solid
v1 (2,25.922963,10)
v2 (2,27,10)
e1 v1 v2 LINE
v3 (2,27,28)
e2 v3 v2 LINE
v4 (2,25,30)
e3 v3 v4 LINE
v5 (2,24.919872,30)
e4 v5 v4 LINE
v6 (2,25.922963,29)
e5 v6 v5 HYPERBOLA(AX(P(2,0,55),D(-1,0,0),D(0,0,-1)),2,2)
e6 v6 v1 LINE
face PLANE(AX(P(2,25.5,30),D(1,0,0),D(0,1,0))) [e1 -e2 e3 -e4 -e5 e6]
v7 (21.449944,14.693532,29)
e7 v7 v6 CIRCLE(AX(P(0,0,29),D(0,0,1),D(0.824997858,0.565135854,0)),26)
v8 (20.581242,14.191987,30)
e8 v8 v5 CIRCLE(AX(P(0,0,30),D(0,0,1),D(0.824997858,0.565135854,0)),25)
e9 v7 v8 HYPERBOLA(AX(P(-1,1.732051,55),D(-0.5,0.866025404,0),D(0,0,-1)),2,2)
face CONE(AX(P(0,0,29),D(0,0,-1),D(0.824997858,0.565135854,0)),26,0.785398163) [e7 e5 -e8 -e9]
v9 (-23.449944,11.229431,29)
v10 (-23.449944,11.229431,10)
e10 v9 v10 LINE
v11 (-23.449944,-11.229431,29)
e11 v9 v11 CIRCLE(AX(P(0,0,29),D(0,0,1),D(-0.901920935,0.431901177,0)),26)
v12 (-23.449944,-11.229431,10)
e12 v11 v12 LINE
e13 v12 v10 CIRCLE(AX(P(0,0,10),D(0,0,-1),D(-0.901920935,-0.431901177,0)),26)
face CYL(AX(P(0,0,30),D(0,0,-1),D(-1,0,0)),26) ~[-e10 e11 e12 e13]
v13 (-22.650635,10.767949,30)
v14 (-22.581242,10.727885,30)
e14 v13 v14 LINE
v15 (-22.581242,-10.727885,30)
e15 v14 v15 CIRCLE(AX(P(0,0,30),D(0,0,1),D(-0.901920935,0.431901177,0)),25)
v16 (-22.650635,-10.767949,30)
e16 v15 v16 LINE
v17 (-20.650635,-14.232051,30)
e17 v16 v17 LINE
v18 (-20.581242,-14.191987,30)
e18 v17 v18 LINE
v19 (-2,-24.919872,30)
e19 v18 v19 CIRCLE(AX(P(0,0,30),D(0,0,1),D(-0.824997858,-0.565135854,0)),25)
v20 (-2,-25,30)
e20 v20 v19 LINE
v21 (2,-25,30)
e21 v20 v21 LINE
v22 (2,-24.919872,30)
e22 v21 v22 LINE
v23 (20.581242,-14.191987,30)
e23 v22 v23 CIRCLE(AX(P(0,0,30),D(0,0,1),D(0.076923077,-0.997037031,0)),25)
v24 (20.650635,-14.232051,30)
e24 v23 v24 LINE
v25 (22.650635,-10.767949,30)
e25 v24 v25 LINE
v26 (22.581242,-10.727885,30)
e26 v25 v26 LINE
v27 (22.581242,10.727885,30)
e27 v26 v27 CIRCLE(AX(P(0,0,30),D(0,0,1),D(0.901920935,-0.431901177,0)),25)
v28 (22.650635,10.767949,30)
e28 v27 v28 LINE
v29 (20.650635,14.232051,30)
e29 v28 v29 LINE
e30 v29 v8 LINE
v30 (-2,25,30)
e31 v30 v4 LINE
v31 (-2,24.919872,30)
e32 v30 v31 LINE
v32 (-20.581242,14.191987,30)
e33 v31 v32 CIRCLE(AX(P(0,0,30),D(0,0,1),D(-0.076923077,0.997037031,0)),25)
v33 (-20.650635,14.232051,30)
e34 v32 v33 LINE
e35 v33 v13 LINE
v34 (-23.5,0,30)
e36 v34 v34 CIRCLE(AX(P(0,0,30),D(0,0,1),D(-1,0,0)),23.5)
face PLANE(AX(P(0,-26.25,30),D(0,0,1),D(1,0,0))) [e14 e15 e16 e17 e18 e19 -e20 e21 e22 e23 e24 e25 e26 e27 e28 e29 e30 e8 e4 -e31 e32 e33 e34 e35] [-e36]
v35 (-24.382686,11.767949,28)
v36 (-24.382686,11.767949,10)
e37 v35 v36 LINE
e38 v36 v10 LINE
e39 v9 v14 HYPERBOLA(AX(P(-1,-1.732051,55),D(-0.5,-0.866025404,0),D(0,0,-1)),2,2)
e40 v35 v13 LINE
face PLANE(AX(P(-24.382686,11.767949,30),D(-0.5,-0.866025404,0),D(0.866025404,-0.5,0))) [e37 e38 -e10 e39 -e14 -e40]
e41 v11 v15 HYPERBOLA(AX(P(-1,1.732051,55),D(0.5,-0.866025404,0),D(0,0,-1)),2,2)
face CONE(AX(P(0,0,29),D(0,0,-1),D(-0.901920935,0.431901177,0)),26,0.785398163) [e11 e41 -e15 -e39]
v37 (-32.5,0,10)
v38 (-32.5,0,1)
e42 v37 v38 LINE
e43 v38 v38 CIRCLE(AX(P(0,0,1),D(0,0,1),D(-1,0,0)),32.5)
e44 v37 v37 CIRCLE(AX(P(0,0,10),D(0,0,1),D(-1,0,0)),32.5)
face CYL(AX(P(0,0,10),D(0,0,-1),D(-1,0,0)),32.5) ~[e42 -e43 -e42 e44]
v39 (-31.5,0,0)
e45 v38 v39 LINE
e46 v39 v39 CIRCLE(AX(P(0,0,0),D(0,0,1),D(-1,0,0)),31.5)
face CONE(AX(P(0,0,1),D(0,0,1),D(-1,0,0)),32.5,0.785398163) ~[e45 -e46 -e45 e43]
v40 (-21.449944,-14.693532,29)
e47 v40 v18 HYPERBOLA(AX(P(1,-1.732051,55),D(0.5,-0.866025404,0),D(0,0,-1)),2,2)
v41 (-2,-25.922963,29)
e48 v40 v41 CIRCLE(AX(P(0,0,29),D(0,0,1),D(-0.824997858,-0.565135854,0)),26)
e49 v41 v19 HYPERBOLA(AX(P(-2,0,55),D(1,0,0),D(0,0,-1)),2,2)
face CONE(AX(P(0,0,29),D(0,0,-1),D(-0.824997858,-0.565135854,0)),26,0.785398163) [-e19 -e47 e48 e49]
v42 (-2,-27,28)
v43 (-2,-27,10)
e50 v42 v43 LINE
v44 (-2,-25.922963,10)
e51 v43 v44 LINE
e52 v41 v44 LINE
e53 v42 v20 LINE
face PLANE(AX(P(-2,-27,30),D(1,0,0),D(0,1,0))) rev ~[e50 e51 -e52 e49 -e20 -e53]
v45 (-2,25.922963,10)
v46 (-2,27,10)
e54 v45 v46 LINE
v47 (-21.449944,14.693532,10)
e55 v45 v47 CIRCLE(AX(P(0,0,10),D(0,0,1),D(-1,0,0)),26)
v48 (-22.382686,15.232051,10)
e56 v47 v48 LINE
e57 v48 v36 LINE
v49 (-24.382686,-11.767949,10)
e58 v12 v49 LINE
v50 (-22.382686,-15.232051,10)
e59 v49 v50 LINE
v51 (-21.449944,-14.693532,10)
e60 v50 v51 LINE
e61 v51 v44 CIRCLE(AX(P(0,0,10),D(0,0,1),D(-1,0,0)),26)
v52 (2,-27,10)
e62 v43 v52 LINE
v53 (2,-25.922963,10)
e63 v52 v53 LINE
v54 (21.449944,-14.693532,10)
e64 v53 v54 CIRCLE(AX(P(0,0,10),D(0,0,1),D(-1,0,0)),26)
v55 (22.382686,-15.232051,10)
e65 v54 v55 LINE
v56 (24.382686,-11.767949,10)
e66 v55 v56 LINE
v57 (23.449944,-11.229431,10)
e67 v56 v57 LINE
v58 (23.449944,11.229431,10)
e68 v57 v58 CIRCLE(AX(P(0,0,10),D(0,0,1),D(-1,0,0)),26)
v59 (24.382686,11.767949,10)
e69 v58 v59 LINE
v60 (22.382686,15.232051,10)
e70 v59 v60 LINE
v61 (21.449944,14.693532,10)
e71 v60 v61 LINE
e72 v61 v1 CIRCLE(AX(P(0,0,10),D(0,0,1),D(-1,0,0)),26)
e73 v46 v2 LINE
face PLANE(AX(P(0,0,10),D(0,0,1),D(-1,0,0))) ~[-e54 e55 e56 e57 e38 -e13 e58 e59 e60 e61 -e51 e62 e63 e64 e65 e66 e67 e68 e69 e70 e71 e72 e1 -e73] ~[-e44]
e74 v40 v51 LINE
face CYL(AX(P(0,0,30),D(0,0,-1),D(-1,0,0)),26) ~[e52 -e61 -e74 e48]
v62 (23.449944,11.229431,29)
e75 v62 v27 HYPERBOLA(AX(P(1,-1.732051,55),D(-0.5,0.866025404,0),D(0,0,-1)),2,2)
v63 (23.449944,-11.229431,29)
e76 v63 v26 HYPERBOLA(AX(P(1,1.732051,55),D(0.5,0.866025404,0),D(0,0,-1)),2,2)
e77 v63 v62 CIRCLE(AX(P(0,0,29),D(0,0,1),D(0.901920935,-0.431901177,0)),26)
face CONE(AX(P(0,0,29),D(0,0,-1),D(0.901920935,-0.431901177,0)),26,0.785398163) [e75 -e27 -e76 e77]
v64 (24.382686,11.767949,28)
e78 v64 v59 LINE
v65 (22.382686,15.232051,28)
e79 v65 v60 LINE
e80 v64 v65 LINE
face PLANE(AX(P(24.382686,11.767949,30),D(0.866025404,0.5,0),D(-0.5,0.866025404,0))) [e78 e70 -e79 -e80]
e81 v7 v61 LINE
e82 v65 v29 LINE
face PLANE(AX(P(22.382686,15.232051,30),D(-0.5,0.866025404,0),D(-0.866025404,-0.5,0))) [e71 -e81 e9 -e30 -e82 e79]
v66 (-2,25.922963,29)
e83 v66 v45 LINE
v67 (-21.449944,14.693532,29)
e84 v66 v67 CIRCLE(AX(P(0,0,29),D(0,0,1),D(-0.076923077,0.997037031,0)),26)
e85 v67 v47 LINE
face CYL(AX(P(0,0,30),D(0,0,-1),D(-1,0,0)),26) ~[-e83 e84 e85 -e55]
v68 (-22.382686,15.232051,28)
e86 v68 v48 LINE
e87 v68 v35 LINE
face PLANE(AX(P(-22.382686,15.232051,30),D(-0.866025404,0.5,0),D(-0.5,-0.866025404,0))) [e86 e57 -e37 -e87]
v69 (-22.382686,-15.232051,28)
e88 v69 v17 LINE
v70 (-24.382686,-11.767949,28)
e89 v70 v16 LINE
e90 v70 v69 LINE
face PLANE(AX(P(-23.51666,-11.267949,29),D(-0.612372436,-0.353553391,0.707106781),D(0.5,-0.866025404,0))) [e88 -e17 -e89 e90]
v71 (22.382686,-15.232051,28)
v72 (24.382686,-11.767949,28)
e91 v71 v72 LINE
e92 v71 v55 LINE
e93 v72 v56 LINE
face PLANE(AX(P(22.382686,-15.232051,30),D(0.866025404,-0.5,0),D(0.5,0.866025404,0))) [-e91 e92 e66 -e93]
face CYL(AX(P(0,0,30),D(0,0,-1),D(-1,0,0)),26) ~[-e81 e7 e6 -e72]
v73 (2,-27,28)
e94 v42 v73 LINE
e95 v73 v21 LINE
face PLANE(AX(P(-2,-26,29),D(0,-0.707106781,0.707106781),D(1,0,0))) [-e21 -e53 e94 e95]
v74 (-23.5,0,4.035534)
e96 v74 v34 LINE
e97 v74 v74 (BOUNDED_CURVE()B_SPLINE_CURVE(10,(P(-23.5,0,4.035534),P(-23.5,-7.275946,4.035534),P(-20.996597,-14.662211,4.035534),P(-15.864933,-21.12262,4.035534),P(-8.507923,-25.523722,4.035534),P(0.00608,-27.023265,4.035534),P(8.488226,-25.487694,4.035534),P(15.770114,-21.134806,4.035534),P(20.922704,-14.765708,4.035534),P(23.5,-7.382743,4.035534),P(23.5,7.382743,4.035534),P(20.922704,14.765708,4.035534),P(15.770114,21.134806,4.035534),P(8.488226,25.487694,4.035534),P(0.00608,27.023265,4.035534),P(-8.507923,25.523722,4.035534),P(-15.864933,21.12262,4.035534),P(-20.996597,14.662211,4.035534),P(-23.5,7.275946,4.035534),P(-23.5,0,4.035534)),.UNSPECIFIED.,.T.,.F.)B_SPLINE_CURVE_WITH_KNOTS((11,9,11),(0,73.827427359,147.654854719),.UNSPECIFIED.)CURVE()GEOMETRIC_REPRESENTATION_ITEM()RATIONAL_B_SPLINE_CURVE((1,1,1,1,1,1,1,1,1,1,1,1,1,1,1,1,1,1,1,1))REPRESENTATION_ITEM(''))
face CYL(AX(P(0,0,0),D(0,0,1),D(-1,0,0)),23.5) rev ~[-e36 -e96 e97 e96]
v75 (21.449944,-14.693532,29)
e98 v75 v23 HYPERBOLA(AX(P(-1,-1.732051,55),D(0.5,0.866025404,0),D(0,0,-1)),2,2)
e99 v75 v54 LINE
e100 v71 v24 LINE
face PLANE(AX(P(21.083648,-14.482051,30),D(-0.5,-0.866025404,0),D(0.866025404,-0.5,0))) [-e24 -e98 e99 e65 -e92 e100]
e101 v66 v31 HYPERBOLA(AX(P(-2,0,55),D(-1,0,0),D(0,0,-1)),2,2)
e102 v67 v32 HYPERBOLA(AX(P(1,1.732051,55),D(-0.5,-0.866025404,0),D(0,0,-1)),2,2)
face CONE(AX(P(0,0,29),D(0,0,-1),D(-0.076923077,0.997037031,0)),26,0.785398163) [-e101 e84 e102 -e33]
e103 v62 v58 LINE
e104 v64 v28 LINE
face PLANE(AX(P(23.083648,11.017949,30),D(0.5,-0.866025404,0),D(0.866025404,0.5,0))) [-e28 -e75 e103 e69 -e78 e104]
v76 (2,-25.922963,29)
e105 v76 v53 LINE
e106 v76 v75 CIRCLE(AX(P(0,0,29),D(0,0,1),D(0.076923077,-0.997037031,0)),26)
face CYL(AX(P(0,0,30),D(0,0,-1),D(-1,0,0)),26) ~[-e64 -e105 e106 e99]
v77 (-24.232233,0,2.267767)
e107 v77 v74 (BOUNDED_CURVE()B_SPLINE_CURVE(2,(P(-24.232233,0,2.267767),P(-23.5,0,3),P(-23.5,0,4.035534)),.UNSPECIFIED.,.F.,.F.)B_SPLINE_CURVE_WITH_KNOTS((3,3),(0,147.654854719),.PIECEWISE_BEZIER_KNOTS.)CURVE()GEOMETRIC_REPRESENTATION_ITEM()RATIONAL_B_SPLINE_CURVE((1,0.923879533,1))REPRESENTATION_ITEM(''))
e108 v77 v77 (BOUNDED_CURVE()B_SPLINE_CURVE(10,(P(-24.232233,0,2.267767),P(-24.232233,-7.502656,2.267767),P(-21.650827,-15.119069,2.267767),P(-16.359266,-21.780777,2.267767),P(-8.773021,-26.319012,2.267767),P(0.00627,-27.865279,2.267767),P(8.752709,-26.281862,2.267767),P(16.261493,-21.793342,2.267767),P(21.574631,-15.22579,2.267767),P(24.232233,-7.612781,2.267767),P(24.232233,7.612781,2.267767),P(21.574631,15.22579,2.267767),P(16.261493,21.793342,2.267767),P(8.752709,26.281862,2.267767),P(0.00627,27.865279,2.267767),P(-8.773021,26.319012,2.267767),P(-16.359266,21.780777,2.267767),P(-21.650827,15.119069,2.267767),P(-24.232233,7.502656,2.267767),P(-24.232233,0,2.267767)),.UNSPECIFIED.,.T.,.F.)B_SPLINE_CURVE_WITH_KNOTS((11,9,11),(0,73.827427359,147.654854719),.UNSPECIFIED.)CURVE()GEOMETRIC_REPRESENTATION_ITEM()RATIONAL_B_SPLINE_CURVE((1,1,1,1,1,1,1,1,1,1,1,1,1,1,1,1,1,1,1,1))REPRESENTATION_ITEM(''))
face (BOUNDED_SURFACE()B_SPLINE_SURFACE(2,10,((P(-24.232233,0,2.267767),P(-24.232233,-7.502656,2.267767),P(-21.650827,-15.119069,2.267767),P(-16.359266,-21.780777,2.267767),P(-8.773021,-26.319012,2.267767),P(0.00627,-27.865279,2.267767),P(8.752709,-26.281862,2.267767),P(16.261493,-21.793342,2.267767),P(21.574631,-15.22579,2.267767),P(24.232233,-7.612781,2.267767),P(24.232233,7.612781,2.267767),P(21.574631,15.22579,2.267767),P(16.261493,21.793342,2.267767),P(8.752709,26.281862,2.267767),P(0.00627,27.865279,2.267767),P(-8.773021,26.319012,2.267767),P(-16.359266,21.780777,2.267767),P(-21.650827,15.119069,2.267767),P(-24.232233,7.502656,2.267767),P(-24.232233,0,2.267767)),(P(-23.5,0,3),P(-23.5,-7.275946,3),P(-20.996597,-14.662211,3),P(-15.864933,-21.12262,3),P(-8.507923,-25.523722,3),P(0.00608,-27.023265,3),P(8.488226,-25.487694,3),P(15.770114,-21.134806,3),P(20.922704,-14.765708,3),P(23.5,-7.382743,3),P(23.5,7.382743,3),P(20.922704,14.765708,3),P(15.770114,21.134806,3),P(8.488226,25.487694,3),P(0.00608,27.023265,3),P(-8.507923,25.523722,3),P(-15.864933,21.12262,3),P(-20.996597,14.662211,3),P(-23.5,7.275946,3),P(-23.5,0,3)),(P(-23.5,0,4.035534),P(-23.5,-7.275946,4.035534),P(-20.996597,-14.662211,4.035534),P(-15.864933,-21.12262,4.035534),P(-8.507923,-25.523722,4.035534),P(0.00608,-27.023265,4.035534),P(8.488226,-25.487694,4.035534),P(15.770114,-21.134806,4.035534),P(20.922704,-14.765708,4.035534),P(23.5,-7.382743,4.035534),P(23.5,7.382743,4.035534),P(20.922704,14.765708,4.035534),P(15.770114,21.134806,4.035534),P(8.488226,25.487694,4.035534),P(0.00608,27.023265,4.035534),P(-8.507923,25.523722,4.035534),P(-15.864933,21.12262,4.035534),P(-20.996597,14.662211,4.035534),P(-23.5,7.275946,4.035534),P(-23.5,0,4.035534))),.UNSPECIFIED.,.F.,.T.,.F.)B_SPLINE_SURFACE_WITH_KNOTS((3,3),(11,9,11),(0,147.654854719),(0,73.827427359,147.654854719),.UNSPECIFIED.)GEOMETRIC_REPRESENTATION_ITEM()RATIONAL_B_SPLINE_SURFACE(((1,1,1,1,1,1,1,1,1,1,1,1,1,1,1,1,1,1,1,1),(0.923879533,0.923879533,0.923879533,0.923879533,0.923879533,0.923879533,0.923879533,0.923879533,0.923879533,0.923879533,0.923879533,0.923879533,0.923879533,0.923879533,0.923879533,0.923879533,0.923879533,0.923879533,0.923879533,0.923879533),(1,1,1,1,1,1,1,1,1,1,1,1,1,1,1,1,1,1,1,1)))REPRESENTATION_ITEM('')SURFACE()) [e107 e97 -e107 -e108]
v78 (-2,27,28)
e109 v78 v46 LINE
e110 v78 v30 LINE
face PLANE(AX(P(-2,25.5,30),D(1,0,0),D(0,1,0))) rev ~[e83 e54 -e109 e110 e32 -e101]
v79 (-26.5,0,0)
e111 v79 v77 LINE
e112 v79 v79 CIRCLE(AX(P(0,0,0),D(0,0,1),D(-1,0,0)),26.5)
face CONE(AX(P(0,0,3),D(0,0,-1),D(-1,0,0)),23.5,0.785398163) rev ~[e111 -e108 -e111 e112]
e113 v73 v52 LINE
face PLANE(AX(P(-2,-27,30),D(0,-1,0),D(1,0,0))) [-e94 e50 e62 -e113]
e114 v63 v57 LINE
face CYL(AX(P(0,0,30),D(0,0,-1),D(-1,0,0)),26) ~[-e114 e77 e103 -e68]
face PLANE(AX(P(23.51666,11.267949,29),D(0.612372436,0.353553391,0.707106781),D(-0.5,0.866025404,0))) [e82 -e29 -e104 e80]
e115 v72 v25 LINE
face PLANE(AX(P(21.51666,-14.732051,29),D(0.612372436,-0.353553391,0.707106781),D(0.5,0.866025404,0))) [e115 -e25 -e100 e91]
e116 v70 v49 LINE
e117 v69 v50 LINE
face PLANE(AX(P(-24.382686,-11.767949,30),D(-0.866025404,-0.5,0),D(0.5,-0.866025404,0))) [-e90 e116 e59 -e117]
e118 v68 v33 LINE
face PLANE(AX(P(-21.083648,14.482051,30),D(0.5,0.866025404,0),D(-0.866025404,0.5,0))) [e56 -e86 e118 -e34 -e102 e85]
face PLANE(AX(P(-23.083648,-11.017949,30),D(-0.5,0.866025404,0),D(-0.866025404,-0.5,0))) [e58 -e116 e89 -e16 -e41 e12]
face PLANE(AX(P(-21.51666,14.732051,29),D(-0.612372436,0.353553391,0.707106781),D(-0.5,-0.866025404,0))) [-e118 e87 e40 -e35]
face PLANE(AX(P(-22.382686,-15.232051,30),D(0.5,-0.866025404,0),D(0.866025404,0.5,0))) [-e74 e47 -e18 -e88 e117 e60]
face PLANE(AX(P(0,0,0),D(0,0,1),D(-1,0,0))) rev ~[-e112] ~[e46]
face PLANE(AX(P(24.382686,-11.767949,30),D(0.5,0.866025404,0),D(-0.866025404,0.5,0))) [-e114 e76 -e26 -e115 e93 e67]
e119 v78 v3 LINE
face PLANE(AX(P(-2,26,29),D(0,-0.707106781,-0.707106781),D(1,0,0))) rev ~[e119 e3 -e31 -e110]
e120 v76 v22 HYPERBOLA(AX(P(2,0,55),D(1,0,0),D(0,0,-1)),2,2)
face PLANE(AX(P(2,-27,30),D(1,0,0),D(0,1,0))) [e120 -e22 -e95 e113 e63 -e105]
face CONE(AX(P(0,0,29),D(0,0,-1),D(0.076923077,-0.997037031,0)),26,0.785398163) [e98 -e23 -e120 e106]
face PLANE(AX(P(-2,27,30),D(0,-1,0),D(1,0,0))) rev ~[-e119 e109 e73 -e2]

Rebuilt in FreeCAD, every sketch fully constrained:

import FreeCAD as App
import Part
import Sketcher
from FreeCAD import Vector
Q = App.Units.Quantity


def edges_at(feature, points):
    """Names of the edges that pass closest to the given points."""
    edges = feature.Shape.Edges
    near = lambda p: min(range(len(edges)), key=lambda i: edges[i].distToShape(Part.Vertex(*p))[0])
    return sorted({f"Edge{near(p) + 1}" for p in points})

doc = App.newDocument("Part")
body = doc.addObject("PartDesign::Body", "Body")

sketch1 = body.newObject("Sketcher::SketchObject", "Sketch")
sketch1.AttachmentSupport = (doc.getObject("XZ_Plane"), [""])
sketch1.MapMode = "FlatFace"
sketch1.addGeometry([
    Part.LineSegment(Vector(-32.5, 0, 0), Vector(-23.5, 0, 0)),
    Part.LineSegment(Vector(-23.5, 0, 0), Vector(-23.5, 30, 0)),
    Part.LineSegment(Vector(-23.5, 30, 0), Vector(-26, 30, 0)),
    Part.LineSegment(Vector(-26, 30, 0), Vector(-26, 10, 0)),
    Part.LineSegment(Vector(-26, 10, 0), Vector(-32.5, 10, 0)),
    Part.LineSegment(Vector(-32.5, 10, 0), Vector(-32.5, 0, 0)),
], False)
sketch1.addConstraint([
    Sketcher.Constraint("Coincident", 0, 2, 1, 1),
    Sketcher.Constraint("Coincident", 1, 2, 2, 1),
    Sketcher.Constraint("Coincident", 2, 2, 3, 1),
    Sketcher.Constraint("Coincident", 3, 2, 4, 1),
    Sketcher.Constraint("Coincident", 4, 2, 5, 1),
    Sketcher.Constraint("Coincident", 5, 2, 0, 1),
    Sketcher.Constraint("Horizontal", 0),
    Sketcher.Constraint("Vertical", 1),
    Sketcher.Constraint("Horizontal", 2),
    Sketcher.Constraint("Vertical", 3),
    Sketcher.Constraint("Horizontal", 4),
    Sketcher.Constraint("Vertical", 5),
    Sketcher.Constraint("PointOnObject", 0, 2, -1),
    Sketcher.Constraint("DistanceX", 0, 1, 0, 2, Q("9 mm")),
    Sketcher.Constraint("DistanceY", 1, 1, 1, 2, Q("30 mm")),
    Sketcher.Constraint("DistanceY", 3, 2, 3, 1, Q("20 mm")),
    Sketcher.Constraint("DistanceX", 2, 2, 2, 1, Q("2.5 mm")),
    Sketcher.Constraint("DistanceX", 2, 2, -1, 1, Q("26 mm")),
])
revolution = body.newObject("PartDesign::Revolution", "Revolution")
revolution.Profile = sketch1
revolution.ReferenceAxis = (sketch1, ["V_Axis"])
revolution.Angle = 360
doc.recompute()

chamfer = body.newObject("PartDesign::Chamfer", "Chamfer")
chamfer.Base = (revolution, edges_at(revolution, [(23.5, 0, 0)]))
chamfer.Size = 3
doc.recompute()

fillet = body.newObject("PartDesign::Fillet", "Fillet")
fillet.Base = (chamfer, edges_at(chamfer, [(23.5, 0, 3)]))
fillet.Radius = 2.5

sketch2 = body.newObject("Sketcher::SketchObject", "Sketch001")
sketch2.AttachmentSupport = (doc.getObject("XY_Plane"), [""])
sketch2.MapMode = "FlatFace"
sketch2.AttachmentOffset = App.Placement(Vector(0, 0, 30), App.Rotation())
sketch2.addGeometry([
    Part.LineSegment(Vector(-2, -25.5, 0), Vector(-2, -27, 0)),
    Part.LineSegment(Vector(-2, -27, 0), Vector(2, -27, 0)),
    Part.LineSegment(Vector(2, -27, 0), Vector(2, -25.5, 0)),
    Part.LineSegment(Vector(2, -25.5, 0), Vector(-2, -25.5, 0)),
    Part.LineSegment(Vector(22.4, -15.2, 0), Vector(24.4, -11.8, 0)),
    Part.LineSegment(Vector(24.4, -11.8, 0), Vector(23.1, -11, 0)),
    Part.LineSegment(Vector(23.1, -11, 0), Vector(21.1, -14.5, 0)),
    Part.LineSegment(Vector(21.1, -14.5, 0), Vector(22.4, -15.2, 0)),
    Part.LineSegment(Vector(24.4, 11.8, 0), Vector(22.4, 15.2, 0)),
    Part.LineSegment(Vector(22.4, 15.2, 0), Vector(21.1, 14.5, 0)),
    Part.LineSegment(Vector(21.1, 14.5, 0), Vector(23.1, 11, 0)),
    Part.LineSegment(Vector(23.1, 11, 0), Vector(24.4, 11.8, 0)),
    Part.LineSegment(Vector(-2, 27, 0), Vector(-2, 25.5, 0)),
    Part.LineSegment(Vector(-2, 25.5, 0), Vector(2, 25.5, 0)),
    Part.LineSegment(Vector(2, 25.5, 0), Vector(2, 27, 0)),
    Part.LineSegment(Vector(2, 27, 0), Vector(-2, 27, 0)),
    Part.LineSegment(Vector(-22.4, 15.2, 0), Vector(-24.4, 11.8, 0)),
    Part.LineSegment(Vector(-24.4, 11.8, 0), Vector(-23.1, 11, 0)),
    Part.LineSegment(Vector(-23.1, 11, 0), Vector(-21.1, 14.5, 0)),
    Part.LineSegment(Vector(-21.1, 14.5, 0), Vector(-22.4, 15.2, 0)),
    Part.LineSegment(Vector(-24.4, -11.8, 0), Vector(-22.4, -15.2, 0)),
    Part.LineSegment(Vector(-22.4, -15.2, 0), Vector(-21.1, -14.5, 0)),
    Part.LineSegment(Vector(-21.1, -14.5, 0), Vector(-23.1, -11, 0)),
    Part.LineSegment(Vector(-23.1, -11, 0), Vector(-24.4, -11.8, 0)),
], False)
sketch2.addConstraint([
    Sketcher.Constraint("Coincident", 0, 2, 1, 1),
    Sketcher.Constraint("Coincident", 1, 2, 2, 1),
    Sketcher.Constraint("Coincident", 2, 2, 3, 1),
    Sketcher.Constraint("Coincident", 3, 2, 0, 1),
    Sketcher.Constraint("Coincident", 4, 2, 5, 1),
    Sketcher.Constraint("Coincident", 5, 2, 6, 1),
    Sketcher.Constraint("Coincident", 6, 2, 7, 1),
    Sketcher.Constraint("Coincident", 7, 2, 4, 1),
    Sketcher.Constraint("Coincident", 8, 2, 9, 1),
    Sketcher.Constraint("Coincident", 9, 2, 10, 1),
    Sketcher.Constraint("Coincident", 10, 2, 11, 1),
    Sketcher.Constraint("Coincident", 11, 2, 8, 1),
    Sketcher.Constraint("Coincident", 12, 2, 13, 1),
    Sketcher.Constraint("Coincident", 13, 2, 14, 1),
    Sketcher.Constraint("Coincident", 14, 2, 15, 1),
    Sketcher.Constraint("Coincident", 15, 2, 12, 1),
    Sketcher.Constraint("Coincident", 16, 2, 17, 1),
    Sketcher.Constraint("Coincident", 17, 2, 18, 1),
    Sketcher.Constraint("Coincident", 18, 2, 19, 1),
    Sketcher.Constraint("Coincident", 19, 2, 16, 1),
    Sketcher.Constraint("Coincident", 20, 2, 21, 1),
    Sketcher.Constraint("Coincident", 21, 2, 22, 1),
    Sketcher.Constraint("Coincident", 22, 2, 23, 1),
    Sketcher.Constraint("Coincident", 23, 2, 20, 1),
    Sketcher.Constraint("Vertical", 0),
    Sketcher.Constraint("Horizontal", 1),
    Sketcher.Constraint("Vertical", 2),
    Sketcher.Constraint("Horizontal", 3),
    Sketcher.Constraint("Vertical", 12),
    Sketcher.Constraint("Horizontal", 13),
    Sketcher.Constraint("Vertical", 14),
    Sketcher.Constraint("Horizontal", 15),
    Sketcher.Constraint("Symmetric", 2, 2, 12, 2, -1, 1),
    Sketcher.Constraint("Symmetric", 0, 2, 14, 2, -1, 1),
    Sketcher.Constraint("Symmetric", 4, 2, 16, 2, -1, 1),
    Sketcher.Constraint("Symmetric", 5, 2, 17, 2, -1, 1),
    Sketcher.Constraint("Symmetric", 6, 2, 18, 2, -1, 1),
    Sketcher.Constraint("Symmetric", 7, 2, 19, 2, -1, 1),
    Sketcher.Constraint("Symmetric", 8, 2, 20, 2, -1, 1),
    Sketcher.Constraint("Symmetric", 9, 2, 21, 2, -1, 1),
    Sketcher.Constraint("Symmetric", 10, 2, 22, 2, -1, 1),
    Sketcher.Constraint("Symmetric", 11, 2, 23, 2, -1, 1),
    Sketcher.Constraint("Symmetric", 11, 2, 16, 2, -2),
    Sketcher.Constraint("Symmetric", 10, 2, 17, 2, -2),
    Sketcher.Constraint("Symmetric", 9, 2, 18, 2, -2),
    Sketcher.Constraint("Symmetric", 8, 2, 19, 2, -2),
    Sketcher.Constraint("Perpendicular", 4, 5),
    Sketcher.Constraint("Perpendicular", 5, 6),
    Sketcher.Constraint("Perpendicular", 6, 7),
    Sketcher.Constraint("Vertical", 3, 2, 12, 2),
    Sketcher.Constraint("DistanceX", 1, 1, 1, 2, Q("4 mm")),
    Sketcher.Constraint("Angle", 4, Q("60 deg")),
    Sketcher.Constraint("Distance", 4, Q("4 mm")),
    Sketcher.Constraint("DistanceY", 0, 2, 0, 1, Q("1.5 mm")),
    Sketcher.Constraint("DistanceY", 0, 2, -1, 1, Q("27 mm")),
    Sketcher.Constraint("DistanceY", 4, 2, 8, 2, Q("27 mm")),
    Sketcher.Constraint("Distance", 5, Q("1.5 mm")),
    Sketcher.Constraint("DistanceX", -1, 1, 4, 2, Q("24.382686 mm")),
])
pad1 = body.newObject("PartDesign::Pad", "Pad")
pad1.Profile = sketch2
pad1.Length = 20
pad1.Reversed = True
doc.recompute()

chamfer2 = body.newObject("PartDesign::Chamfer", "Chamfer001")
chamfer2.Base = (pad1, edges_at(pad1, [
    (-26, 0, 30),
    (-13, 22.517, 30),
    (13, 22.517, 30),
    (26, 0, 30),
    (13, -22.517, 30),
    (-13, -22.517, 30),
]))
chamfer2.Size = 1
doc.recompute()

chamfer3 = body.newObject("PartDesign::Chamfer", "Chamfer002")
chamfer3.Base = (chamfer2, edges_at(chamfer2, [
    (23.383, -13.5, 30),
    (23.383, 13.5, 30),
    (0, 27, 30),
    (-23.383, 13.5, 30),
    (-23.383, -13.5, 30),
    (0, -27, 30),
]))
chamfer3.Size = 2
doc.recompute()

chamfer4 = body.newObject("PartDesign::Chamfer", "Chamfer003")
chamfer4.Base = (chamfer3, edges_at(chamfer3, [(32.5, 0, 0)]))
chamfer4.Size = 1

doc.recompute()
